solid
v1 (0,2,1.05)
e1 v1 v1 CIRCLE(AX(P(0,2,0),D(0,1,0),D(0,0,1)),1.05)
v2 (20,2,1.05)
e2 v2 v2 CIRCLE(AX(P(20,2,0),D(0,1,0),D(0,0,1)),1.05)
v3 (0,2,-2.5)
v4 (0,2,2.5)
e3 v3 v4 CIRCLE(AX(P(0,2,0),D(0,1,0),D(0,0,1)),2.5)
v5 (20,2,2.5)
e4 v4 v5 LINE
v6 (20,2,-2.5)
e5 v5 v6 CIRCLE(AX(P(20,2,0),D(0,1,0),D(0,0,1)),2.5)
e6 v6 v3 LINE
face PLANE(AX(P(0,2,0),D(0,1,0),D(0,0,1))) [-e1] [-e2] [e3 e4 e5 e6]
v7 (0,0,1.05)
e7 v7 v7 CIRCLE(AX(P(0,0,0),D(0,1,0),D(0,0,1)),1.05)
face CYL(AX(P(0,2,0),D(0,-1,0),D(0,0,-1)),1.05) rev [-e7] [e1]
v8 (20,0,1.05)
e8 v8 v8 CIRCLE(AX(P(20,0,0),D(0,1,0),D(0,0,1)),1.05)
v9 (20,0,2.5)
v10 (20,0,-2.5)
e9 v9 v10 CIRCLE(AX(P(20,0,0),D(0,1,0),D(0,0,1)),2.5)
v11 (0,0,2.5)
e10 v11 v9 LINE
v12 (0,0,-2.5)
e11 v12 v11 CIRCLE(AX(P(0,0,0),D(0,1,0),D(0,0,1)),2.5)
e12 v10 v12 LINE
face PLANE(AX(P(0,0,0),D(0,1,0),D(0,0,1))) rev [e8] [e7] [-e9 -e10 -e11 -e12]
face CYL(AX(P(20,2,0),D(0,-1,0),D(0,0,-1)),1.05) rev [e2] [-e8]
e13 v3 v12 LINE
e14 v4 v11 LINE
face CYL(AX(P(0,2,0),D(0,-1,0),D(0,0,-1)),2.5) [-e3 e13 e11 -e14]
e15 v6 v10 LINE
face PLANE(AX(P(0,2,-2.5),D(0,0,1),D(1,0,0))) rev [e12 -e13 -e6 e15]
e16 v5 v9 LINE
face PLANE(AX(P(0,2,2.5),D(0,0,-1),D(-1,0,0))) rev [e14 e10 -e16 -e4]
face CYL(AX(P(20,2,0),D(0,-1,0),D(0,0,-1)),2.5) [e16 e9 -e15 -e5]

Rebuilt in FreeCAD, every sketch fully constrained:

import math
import FreeCAD as App
import Part
import Sketcher

V = App.Vector
Q = App.Units.Quantity

doc = App.newDocument("Part")
body = doc.addObject("PartDesign::Body", "Body")

sketch1 = doc.addObject("Sketcher::SketchObject", "Sketch")
body.addObject(sketch1)
sketch1.AttachmentSupport = (doc.XZ_Plane, [""])
sketch1.MapMode = "FlatFace"
sketch1.addGeometry(Part.LineSegment(V(20, -2.5, 0), V(0, -2.5, 0)), False)
sketch1.addGeometry(Part.ArcOfCircle(Part.Circle(V(0, 0, 0), V(0, 0, 1), 2.5), math.radians(90), math.radians(270)), False)
sketch1.addGeometry(Part.LineSegment(V(0, 2.5, 0), V(20, 2.5, 0)), False)
sketch1.addGeometry(Part.ArcOfCircle(Part.Circle(V(20, 0, 0), V(0, 0, 1), 2.5), math.radians(-90), math.radians(90)), False)
sketch1.addGeometry(Part.Circle(V(20, 0, 0), V(0, 0, 1), 1.1), False)
sketch1.addGeometry(Part.Circle(V(0, 0, 0), V(0, 0, 1), 1.1), False)
sketch1.addConstraint(Sketcher.Constraint("Tangent", 0, 2, 1, 2))
sketch1.addConstraint(Sketcher.Constraint("Tangent", 1, 1, 2, 1))
sketch1.addConstraint(Sketcher.Constraint("Tangent", 2, 2, 3, 2))
sketch1.addConstraint(Sketcher.Constraint("Tangent", 3, 1, 0, 1))
sketch1.addConstraint(Sketcher.Constraint("Horizontal", 0))
sketch1.addConstraint(Sketcher.Constraint("Horizontal", 2))
sketch1.addConstraint(Sketcher.Constraint("Coincident", 1, 3, -1, 1))
sketch1.addConstraint(Sketcher.Constraint("Coincident", 5, 3, -1, 1))
sketch1.addConstraint(Sketcher.Constraint("Coincident", 4, 3, 3, 3))
sketch1.addConstraint(Sketcher.Constraint("Equal", 4, 5))
sketch1.addConstraint(Sketcher.Constraint("Diameter", 4, Q("2.1 mm")))
sketch1.addConstraint(Sketcher.Constraint("Radius", 1, Q("2.5 mm")))
sketch1.addConstraint(Sketcher.Constraint("DistanceX", 0, 2, 0, 1, Q("20 mm")))
pad1 = doc.addObject("PartDesign::Pad", "Pad")
body.addObject(pad1)
pad1.Profile = sketch1
pad1.Length = 2
pad1.Reversed = True

doc.recompute()
